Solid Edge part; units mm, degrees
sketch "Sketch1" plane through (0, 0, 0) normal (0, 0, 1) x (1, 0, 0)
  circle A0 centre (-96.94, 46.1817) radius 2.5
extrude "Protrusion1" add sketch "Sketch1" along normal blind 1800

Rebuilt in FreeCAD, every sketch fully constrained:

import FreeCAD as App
import Part
import Sketcher

doc = App.newDocument("Part")
body = doc.addObject("PartDesign::Body", "Body")

# Sketch on XY plane
sketch1 = body.newObject("Sketcher::SketchObject", "Sketch")
sketch1.AttachmentSupport = (doc.getObject("XY_Plane"), [""])
sketch1.MapMode = "FlatFace"
sketch1.addGeometry(Part.Circle(App.Vector(-96.94, 46.1817, 0), App.Vector(0, 0, 1), 2.5), False)
sketch1.addConstraint(Sketcher.Constraint("Diameter", 0, 5.0))
sketch1.addConstraint(Sketcher.Constraint("DistanceX", 0, 3, -1, 1, 96.94))
sketch1.addConstraint(Sketcher.Constraint("DistanceY", -1, 1, 0, 3, 46.1817))
pad1 = body.newObject("PartDesign::Pad", "Pad")
pad1.Profile = sketch1
pad1.Length = 1800

doc.recompute()
